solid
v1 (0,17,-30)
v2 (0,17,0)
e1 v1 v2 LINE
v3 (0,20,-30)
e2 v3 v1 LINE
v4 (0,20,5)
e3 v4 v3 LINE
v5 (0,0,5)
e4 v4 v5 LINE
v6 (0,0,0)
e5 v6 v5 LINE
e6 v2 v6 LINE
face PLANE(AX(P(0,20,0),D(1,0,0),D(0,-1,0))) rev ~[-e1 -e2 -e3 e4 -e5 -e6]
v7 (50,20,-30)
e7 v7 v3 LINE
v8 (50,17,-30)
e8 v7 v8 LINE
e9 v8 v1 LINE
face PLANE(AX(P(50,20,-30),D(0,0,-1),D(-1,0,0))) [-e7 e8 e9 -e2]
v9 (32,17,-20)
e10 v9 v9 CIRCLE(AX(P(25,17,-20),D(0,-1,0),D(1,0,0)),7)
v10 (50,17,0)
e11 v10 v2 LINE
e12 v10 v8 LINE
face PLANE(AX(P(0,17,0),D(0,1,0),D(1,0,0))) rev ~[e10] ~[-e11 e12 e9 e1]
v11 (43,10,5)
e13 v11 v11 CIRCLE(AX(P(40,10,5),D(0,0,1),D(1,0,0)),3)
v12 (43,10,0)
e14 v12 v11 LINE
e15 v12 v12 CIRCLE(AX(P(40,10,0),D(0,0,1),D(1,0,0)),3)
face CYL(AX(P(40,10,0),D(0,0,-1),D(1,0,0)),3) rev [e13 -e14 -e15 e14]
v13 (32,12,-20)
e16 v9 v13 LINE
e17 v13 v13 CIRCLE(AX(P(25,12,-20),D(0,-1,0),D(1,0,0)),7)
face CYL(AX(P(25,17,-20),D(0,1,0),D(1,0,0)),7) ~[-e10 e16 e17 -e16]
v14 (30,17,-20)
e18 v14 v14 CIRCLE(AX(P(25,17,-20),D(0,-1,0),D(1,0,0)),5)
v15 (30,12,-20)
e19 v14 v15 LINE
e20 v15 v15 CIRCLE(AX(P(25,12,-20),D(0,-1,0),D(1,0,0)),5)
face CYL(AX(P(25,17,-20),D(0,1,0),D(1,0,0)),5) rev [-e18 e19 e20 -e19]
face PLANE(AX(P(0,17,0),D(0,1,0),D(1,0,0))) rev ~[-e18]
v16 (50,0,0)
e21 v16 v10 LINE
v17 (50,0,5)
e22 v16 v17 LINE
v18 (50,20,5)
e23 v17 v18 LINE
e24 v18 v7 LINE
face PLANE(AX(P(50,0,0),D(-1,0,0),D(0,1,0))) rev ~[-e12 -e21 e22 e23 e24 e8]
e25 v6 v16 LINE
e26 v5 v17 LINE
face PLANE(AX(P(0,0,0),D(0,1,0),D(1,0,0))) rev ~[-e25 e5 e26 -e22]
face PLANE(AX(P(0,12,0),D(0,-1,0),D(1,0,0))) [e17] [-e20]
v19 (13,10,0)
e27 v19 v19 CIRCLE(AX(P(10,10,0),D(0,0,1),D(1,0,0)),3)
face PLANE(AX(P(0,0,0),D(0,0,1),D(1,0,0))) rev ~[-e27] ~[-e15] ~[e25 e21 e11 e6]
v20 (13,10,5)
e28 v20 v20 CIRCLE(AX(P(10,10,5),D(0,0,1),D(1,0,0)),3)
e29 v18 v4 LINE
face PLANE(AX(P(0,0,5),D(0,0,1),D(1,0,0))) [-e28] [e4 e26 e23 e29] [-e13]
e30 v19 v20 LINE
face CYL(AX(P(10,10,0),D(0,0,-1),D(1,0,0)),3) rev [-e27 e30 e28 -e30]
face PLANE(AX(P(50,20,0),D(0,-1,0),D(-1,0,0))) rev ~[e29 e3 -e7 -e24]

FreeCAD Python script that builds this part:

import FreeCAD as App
import Part
import Sketcher


def add_polygon(sketch, points):
    """Adds a closed chain of lines whose ends are joined by coincident constraints."""
    first, n = sketch.GeometryCount, len(points)
    for a, b in zip(points, points[1:] + points[:1]):
        sketch.addGeometry(Part.LineSegment(App.Vector(*a, 0), App.Vector(*b, 0)), False)
    for i in range(n):
        sketch.addConstraint(Sketcher.Constraint("Coincident", first + i, 2, first + (i + 1) % n, 1))

doc = App.newDocument("Part")
params = doc.addObject("Spreadsheet::Sheet", "Params")
for row, (alias, value) in enumerate([
    ("sketch1_diameter", "6 mm"),
    ("sketch1_width", "50 mm"),
    ("sketch1_height", "20 mm"),
    ("pad1_length", "5 mm"),
    ("sketch2_width", "50 mm"),
    ("sketch2_height", "30 mm"),
    ("pad2_length", "3 mm"),
    ("sketch3_diameter", "14 mm"),
    ("sketch3_diameter2", "10 mm"),
    ("pad3_length", "5 mm"),
], start=1):
    params.set(f"A{row}", alias)
    params.set(f"B{row}", "=" + value)
    params.setAlias(f"B{row}", alias)

body = doc.addObject("PartDesign::Body", "Body")

# Sketch on XY plane
sketch1 = body.newObject("Sketcher::SketchObject", "Sketch")
sketch1.AttachmentSupport = (doc.getObject("XY_Plane"), [""])
sketch1.MapMode = "FlatFace"
add_polygon(sketch1, [(0, 20), (0, 0), (50, 0), (50, 20)])  # lines 0-3
sketch1.addGeometry(Part.Circle(App.Vector(10, 10, 0), App.Vector(0, 0, 1), 3), False)  # 4
sketch1.addGeometry(Part.Circle(App.Vector(40, 10, 0), App.Vector(0, 0, 1), 3), False)  # 5
sketch1.addConstraint(Sketcher.Constraint("Vertical", 0))
sketch1.addConstraint(Sketcher.Constraint("Horizontal", 1))
sketch1.addConstraint(Sketcher.Constraint("Vertical", 2))
sketch1.addConstraint(Sketcher.Constraint("Horizontal", 3))
sketch1.addConstraint(Sketcher.Constraint("Coincident", 0, 2, -1, 1))
sketch1.addConstraint(Sketcher.Constraint("Equal", 4, 5))
sketch1.addConstraint(Sketcher.Constraint("Horizontal", 4, 3, 5, 3))
sketch1.addConstraint(Sketcher.Constraint("Diameter", 4, 6.0))
sketch1.addConstraint(Sketcher.Constraint("DistanceX", 1, 1, 1, 2, 50.0))
sketch1.addConstraint(Sketcher.Constraint("DistanceY", 0, 2, 0, 1, 20.0))
sketch1.addConstraint(Sketcher.Constraint("DistanceX", -1, 1, 4, 3, 10.0))
sketch1.addConstraint(Sketcher.Constraint("DistanceY", -1, 1, 4, 3, 10.0))
sketch1.addConstraint(Sketcher.Constraint("DistanceX", 5, 3, 1, 2, 10.0))
sketch1.setExpression("Constraints[11]", "Params.sketch1_diameter")
sketch1.setExpression("Constraints[12]", "Params.sketch1_width")
sketch1.setExpression("Constraints[13]", "Params.sketch1_height")
pad1 = body.newObject("PartDesign::Pad", "Pad")
pad1.Profile = sketch1
pad1.setExpression("Length", "Params.pad1_length")

# Sketch on XZ plane
sketch2 = body.newObject("Sketcher::SketchObject", "Sketch001")
sketch2.AttachmentSupport = (doc.getObject("XZ_Plane"), [""])
sketch2.MapMode = "FlatFace"
sketch2.AttachmentOffset = App.Placement(App.Vector(0, 0, -20), App.Rotation())
add_polygon(sketch2, [(0, 0), (50, 0), (50, -30), (0, -30)])  # lines 0-3
sketch2.addConstraint(Sketcher.Constraint("Horizontal", 0))
sketch2.addConstraint(Sketcher.Constraint("Vertical", 1))
sketch2.addConstraint(Sketcher.Constraint("Horizontal", 2))
sketch2.addConstraint(Sketcher.Constraint("Vertical", 3))
sketch2.addConstraint(Sketcher.Constraint("Coincident", 3, 2, -1, 1))
sketch2.addConstraint(Sketcher.Constraint("DistanceX", 0, 1, 0, 2, 50.0))
sketch2.addConstraint(Sketcher.Constraint("DistanceY", 1, 2, 1, 1, 30.0))
sketch2.setExpression("Constraints[9]", "Params.sketch2_width")
sketch2.setExpression("Constraints[10]", "Params.sketch2_height")
pad2 = body.newObject("PartDesign::Pad", "Pad001")
pad2.Profile = sketch2
pad2.setExpression("Length", "Params.pad2_length")

# Sketch on XZ plane
sketch3 = body.newObject("Sketcher::SketchObject", "Sketch002")
sketch3.AttachmentSupport = (doc.getObject("XZ_Plane"), [""])
sketch3.MapMode = "FlatFace"
sketch3.AttachmentOffset = App.Placement(App.Vector(0, 0, -17), App.Rotation())
sketch3.addGeometry(Part.Circle(App.Vector(25, -20, 0), App.Vector(0, 0, 1), 7), False)
sketch3.addGeometry(Part.Circle(App.Vector(25, -20, 0), App.Vector(0, 0, 1), 5), False)
sketch3.addConstraint(Sketcher.Constraint("Coincident", 1, 3, 0, 3))
sketch3.addConstraint(Sketcher.Constraint("Diameter", 0, 14.0))
sketch3.addConstraint(Sketcher.Constraint("Diameter", 1, 10.0))
sketch3.addConstraint(Sketcher.Constraint("DistanceY", 0, 3, -1, 1, 20.0))
sketch3.addConstraint(Sketcher.Constraint("DistanceX", -1, 1, 0, 3, 25.0))
sketch3.setExpression("Constraints[1]", "Params.sketch3_diameter")
sketch3.setExpression("Constraints[2]", "Params.sketch3_diameter2")
pad3 = body.newObject("PartDesign::Pad", "Pad002")
pad3.Profile = sketch3
pad3.setExpression("Length", "Params.pad3_length")

doc.recompute()
